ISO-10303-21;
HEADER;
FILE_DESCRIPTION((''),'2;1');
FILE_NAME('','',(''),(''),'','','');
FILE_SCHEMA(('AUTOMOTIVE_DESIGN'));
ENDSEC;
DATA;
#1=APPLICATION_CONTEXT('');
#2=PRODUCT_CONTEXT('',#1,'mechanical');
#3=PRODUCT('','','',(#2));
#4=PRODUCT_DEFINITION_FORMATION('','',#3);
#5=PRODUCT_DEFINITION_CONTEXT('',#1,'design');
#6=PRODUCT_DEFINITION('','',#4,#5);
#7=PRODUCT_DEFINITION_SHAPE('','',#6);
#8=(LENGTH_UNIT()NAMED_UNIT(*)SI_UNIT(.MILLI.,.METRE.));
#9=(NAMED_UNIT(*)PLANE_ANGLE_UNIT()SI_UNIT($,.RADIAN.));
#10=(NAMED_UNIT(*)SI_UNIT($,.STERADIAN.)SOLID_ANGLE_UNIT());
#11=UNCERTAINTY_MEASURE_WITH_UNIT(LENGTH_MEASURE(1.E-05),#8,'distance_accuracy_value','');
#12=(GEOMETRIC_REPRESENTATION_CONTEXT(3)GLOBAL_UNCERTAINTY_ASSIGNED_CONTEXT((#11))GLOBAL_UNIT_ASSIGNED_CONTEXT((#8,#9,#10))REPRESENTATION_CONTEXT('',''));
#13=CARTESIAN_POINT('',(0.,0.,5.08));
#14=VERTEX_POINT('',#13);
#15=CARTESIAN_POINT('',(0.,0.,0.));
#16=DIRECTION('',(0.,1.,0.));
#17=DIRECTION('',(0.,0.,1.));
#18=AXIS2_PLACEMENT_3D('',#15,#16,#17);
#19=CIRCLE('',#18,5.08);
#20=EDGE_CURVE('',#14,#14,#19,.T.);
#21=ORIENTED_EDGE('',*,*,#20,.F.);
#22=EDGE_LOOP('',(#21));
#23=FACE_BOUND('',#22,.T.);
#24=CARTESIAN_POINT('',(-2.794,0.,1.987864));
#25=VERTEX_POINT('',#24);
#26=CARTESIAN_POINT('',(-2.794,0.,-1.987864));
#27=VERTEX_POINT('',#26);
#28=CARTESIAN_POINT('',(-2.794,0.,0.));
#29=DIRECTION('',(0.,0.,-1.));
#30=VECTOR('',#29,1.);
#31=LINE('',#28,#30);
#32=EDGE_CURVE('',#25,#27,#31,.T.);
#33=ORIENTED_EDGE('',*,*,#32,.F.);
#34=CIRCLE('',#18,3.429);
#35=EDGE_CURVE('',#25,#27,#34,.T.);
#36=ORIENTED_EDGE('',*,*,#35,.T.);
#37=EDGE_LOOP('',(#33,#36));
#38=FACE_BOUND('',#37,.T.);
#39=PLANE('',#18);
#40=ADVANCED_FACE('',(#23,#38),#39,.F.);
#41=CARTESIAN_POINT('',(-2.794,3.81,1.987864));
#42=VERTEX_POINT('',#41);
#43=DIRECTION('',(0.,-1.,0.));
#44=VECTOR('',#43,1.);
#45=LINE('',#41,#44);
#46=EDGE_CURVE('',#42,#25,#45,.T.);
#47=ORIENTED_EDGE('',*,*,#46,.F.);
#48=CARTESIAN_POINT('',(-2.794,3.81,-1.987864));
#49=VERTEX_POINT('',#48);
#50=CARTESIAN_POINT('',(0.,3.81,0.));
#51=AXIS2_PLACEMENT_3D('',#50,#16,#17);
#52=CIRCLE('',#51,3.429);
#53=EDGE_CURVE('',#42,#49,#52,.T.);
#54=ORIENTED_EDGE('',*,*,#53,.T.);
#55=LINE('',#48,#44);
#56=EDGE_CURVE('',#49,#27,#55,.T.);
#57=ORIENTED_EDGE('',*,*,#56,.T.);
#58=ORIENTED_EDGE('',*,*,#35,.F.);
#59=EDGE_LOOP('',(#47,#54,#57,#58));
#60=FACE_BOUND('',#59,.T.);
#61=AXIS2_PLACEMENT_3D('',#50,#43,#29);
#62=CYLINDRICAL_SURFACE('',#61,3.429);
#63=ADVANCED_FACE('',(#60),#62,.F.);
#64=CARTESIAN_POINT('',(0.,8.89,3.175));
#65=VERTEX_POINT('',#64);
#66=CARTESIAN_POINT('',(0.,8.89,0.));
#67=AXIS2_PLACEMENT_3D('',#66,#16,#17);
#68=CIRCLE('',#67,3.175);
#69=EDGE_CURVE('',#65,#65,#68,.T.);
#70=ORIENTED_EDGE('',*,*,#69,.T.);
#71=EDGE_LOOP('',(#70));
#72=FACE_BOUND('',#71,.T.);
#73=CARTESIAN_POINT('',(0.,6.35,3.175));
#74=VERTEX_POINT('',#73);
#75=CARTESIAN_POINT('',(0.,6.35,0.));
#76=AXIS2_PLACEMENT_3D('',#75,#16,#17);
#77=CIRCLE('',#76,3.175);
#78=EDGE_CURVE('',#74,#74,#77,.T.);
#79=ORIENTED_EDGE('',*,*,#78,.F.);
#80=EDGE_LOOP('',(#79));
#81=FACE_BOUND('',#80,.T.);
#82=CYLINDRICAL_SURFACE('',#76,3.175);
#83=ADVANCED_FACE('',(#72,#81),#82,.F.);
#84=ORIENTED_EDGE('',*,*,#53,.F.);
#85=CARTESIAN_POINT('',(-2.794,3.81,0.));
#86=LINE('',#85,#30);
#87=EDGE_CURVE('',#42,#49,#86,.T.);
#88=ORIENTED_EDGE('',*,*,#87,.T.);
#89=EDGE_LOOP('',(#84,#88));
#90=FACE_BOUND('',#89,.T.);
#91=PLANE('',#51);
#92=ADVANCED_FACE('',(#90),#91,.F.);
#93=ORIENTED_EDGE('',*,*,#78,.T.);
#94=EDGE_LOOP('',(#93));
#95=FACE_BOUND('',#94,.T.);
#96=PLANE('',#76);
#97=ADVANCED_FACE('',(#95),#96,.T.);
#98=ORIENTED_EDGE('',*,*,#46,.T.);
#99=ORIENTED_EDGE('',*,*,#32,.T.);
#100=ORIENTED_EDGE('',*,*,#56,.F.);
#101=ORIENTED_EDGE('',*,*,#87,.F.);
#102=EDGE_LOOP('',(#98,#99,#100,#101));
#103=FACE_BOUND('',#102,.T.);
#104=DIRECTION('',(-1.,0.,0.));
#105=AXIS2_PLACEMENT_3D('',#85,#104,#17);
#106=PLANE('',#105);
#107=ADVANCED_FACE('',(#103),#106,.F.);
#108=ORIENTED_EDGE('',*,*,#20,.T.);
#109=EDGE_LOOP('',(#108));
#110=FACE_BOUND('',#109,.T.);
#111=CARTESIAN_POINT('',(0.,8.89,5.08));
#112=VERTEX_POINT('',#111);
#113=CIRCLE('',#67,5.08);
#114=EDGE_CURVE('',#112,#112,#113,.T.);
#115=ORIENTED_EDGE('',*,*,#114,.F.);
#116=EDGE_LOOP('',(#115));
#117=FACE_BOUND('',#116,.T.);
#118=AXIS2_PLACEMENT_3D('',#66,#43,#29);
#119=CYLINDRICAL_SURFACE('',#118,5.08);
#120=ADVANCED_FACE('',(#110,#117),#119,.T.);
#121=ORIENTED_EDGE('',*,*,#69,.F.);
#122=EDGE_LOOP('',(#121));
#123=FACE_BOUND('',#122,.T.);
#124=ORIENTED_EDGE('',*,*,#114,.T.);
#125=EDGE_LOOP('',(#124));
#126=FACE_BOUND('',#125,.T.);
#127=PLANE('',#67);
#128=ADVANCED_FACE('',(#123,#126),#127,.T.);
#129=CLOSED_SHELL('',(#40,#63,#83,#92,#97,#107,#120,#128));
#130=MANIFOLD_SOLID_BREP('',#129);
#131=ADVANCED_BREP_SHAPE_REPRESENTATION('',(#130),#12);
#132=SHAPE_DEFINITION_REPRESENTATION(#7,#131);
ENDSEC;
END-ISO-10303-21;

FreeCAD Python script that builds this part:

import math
import FreeCAD as App
import Part
import Sketcher
from FreeCAD import Vector
Q = App.Units.Quantity

doc = App.newDocument("Part")
body = doc.addObject("PartDesign::Body", "Body")

sketch1 = doc.addObject("Sketcher::SketchObject", "Sketch")
body.addObject(sketch1)
sketch1.AttachmentSupport = (doc.XZ_Plane, [""])
sketch1.MapMode = "FlatFace"
sketch1.addGeometry(Part.Circle(Vector(0, 0, 0), Vector(0, 0, 1), 5), False)
sketch1.addConstraint([
    Sketcher.Constraint("Coincident", 0, 3, -1, 1),
    Sketcher.Constraint("Diameter", 0, Q("0.4 in")),
])
pad1 = doc.addObject("PartDesign::Pad", "Pad")
body.addObject(pad1)
pad1.Profile = sketch1
pad1.Length = Q("0.35 in")
pad1.Reversed = True

sketch2 = doc.addObject("Sketcher::SketchObject", "Sketch001")
body.addObject(sketch2)
sketch2.AttachmentSupport = (doc.XZ_Plane, [""])
sketch2.MapMode = "FlatFace"
sketch2.addGeometry([
    Part.LineSegment(Vector(-2.8, -2, 0), Vector(-2.8, 2, 0)),
    Part.ArcOfCircle(Part.Circle(Vector(0, 0, 0), Vector(0, 0, 1), 3.4), math.radians(0), math.radians(145)),
    Part.ArcOfCircle(Part.Circle(Vector(0, 0, 0), Vector(0, 0, 1), 3.4), math.radians(-145), math.radians(0)),
], False)
sketch2.addConstraint([
    Sketcher.Constraint("Coincident", 0, 2, 1, 2),
    Sketcher.Constraint("Tangent", 1, 1, 2, 2),
    Sketcher.Constraint("Coincident", 2, 1, 0, 1),
    Sketcher.Constraint("Vertical", 0),
    Sketcher.Constraint("Coincident", 1, 3, -1, 1),
    Sketcher.Constraint("Equal", 1, 2),
    Sketcher.Constraint("PointOnObject", 1, 1, -1),
    Sketcher.Constraint("Radius", 1, Q("0.135 in")),
    Sketcher.Constraint("DistanceX", 0, 2, -1, 1, Q("0.11 in")),
])
pocket1 = doc.addObject("PartDesign::Pocket", "Pocket")
body.addObject(pocket1)
pocket1.Profile = sketch2
pocket1.Length = Q("0.15 in")

sketch3 = doc.addObject("Sketcher::SketchObject", "Sketch002")
body.addObject(sketch3)
sketch3.AttachmentSupport = (doc.XZ_Plane, [""])
sketch3.MapMode = "FlatFace"
sketch3.AttachmentOffset = App.Placement(Vector(0, 0, -0.35 * 25.4), App.Rotation())
sketch3.addGeometry(Part.Circle(Vector(0, 0, 0), Vector(0, 0, 1), 3.2), False)
sketch3.addConstraint([
    Sketcher.Constraint("Coincident", 0, 3, -1, 1),
    Sketcher.Constraint("Diameter", 0, Q("0.25 in")),
])
pocket2 = doc.addObject("PartDesign::Pocket", "Pocket001")
body.addObject(pocket2)
pocket2.Profile = sketch3
pocket2.Length = Q("0.1 in")
pocket2.Reversed = True

doc.recompute()
